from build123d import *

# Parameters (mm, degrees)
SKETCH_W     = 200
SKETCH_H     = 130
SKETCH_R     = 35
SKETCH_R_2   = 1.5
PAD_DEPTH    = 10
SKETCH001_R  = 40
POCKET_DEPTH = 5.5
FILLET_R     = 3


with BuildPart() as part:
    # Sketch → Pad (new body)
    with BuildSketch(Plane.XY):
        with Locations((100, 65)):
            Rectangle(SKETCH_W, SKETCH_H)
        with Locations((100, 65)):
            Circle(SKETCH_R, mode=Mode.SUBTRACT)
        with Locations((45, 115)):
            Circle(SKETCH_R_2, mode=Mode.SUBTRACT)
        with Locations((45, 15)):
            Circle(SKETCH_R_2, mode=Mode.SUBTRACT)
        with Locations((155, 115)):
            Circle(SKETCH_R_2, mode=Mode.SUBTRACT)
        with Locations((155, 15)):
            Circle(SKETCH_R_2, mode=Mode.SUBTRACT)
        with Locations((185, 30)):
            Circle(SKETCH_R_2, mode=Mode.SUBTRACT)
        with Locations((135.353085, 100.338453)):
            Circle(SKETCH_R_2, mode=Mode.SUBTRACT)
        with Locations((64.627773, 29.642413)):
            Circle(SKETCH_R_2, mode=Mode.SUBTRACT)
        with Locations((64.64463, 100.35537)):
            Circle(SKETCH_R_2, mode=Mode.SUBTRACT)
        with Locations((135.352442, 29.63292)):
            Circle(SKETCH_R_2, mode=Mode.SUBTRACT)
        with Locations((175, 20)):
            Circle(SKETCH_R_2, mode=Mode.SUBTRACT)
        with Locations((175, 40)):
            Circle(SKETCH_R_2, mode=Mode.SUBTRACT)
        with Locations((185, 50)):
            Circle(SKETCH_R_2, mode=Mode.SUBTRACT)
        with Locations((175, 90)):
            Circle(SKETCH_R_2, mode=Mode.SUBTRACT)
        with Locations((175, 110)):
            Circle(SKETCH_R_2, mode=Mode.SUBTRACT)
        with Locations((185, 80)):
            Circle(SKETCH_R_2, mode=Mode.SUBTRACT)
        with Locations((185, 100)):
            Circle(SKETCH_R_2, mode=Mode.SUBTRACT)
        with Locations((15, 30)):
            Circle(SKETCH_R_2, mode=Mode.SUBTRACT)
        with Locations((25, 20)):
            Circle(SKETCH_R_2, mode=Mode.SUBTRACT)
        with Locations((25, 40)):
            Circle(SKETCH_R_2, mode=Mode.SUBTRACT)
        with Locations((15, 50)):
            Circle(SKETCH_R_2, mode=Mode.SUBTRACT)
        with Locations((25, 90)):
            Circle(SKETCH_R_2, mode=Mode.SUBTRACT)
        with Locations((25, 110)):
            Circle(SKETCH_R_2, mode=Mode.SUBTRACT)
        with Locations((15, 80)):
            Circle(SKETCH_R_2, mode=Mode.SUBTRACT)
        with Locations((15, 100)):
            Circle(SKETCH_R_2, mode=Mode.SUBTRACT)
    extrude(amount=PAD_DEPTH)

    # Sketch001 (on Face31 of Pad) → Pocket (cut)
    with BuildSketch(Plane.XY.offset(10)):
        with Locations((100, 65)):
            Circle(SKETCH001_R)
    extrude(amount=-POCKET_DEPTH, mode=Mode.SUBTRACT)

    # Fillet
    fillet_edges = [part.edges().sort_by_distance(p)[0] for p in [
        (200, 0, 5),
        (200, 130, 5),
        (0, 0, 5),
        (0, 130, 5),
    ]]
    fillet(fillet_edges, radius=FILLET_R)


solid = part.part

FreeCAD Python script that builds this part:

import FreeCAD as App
import Part
import Sketcher
from FreeCAD import Vector
Q = App.Units.Quantity


def edges_at(feature, points):
    """Names of the edges that pass closest to the given points."""
    edges = feature.Shape.Edges
    near = lambda p: min(range(len(edges)), key=lambda i: edges[i].distToShape(Part.Vertex(*p))[0])
    return sorted({f"Edge{near(p) + 1}" for p in points})


def add_polygon(sketch, points):
    """Adds a closed chain of lines whose ends are joined by coincident constraints."""
    first, n = sketch.GeometryCount, len(points)
    for a, b in zip(points, points[1:] + points[:1]):
        sketch.addGeometry(Part.LineSegment(App.Vector(*a, 0), App.Vector(*b, 0)), False)
    for i in range(n):
        sketch.addConstraint(Sketcher.Constraint("Coincident", first + i, 2, first + (i + 1) % n, 1))

doc = App.newDocument("Part")
params = doc.addObject("Spreadsheet::Sheet", "Params")
for row, (alias, value) in enumerate([
    ("sketch1_diameter", "3 mm"),
    ("sketch1_diameter2", "70 mm"),
    ("sketch1_width", "200 mm"),
    ("sketch1_height", "130 mm"),
    ("pad1_length", "10 mm"),
    ("sketch2_diameter", "80 mm"),
    ("pocket1_length", "5.5 mm"),
    ("fillet_radius", "3 mm"),
], start=1):
    params.set(f"A{row}", alias)
    params.set(f"B{row}", "=" + value)
    params.setAlias(f"B{row}", alias)

body = doc.addObject("PartDesign::Body", "Body")

sketch1 = body.newObject("Sketcher::SketchObject", "Sketch")
sketch1.AttachmentSupport = (doc.getObject("XY_Plane"), [""])
sketch1.MapMode = "FlatFace"
add_polygon(sketch1, [(0, 130), (0, 0), (200, 0), (200, 130)])
sketch1.addGeometry(Part.Circle(Vector(25, 20, 0), Vector(0, 0, 1), 1.5), False)
sketch1.addGeometry(Part.Circle(Vector(45, 15, 0), Vector(0, 0, 1), 1.5), False)
sketch1.addGeometry(Part.Circle(Vector(15, 30, 0), Vector(0, 0, 1), 1.5), False)
sketch1.addGeometry(Part.Circle(Vector(64.6, 29.6, 0), Vector(0, 0, 1), 1.5), False)
sketch1.addGeometry(Part.Circle(Vector(25, 40, 0), Vector(0, 0, 1), 1.5), False)
sketch1.addGeometry(Part.Circle(Vector(15, 50, 0), Vector(0, 0, 1), 1.5), False)
sketch1.addGeometry(Part.Circle(Vector(135.4, 29.6, 0), Vector(0, 0, 1), 1.5), False)
sketch1.addGeometry(Part.Circle(Vector(155, 15, 0), Vector(0, 0, 1), 1.5), False)
sketch1.addGeometry(Part.Circle(Vector(175, 20, 0), Vector(0, 0, 1), 1.5), False)
sketch1.addGeometry(Part.Circle(Vector(185, 30, 0), Vector(0, 0, 1), 1.5), False)
sketch1.addGeometry(Part.Circle(Vector(100, 65, 0), Vector(0, 0, 1), 35), False)
sketch1.addGeometry(Part.Circle(Vector(175, 40, 0), Vector(0, 0, 1), 1.5), False)
sketch1.addGeometry(Part.Circle(Vector(185, 50, 0), Vector(0, 0, 1), 1.5), False)
sketch1.addGeometry(Part.Circle(Vector(15, 80, 0), Vector(0, 0, 1), 1.5), False)
sketch1.addGeometry(Part.Circle(Vector(25, 90, 0), Vector(0, 0, 1), 1.5), False)
sketch1.addGeometry(Part.Circle(Vector(15, 100, 0), Vector(0, 0, 1), 1.5), False)
sketch1.addGeometry(Part.Circle(Vector(25, 110, 0), Vector(0, 0, 1), 1.5), False)
sketch1.addGeometry(Part.Circle(Vector(45, 115, 0), Vector(0, 0, 1), 1.5), False)
sketch1.addGeometry(Part.Circle(Vector(64.6, 100.4, 0), Vector(0, 0, 1), 1.5), False)
sketch1.addGeometry(Part.Circle(Vector(185, 80, 0), Vector(0, 0, 1), 1.5), False)
sketch1.addGeometry(Part.Circle(Vector(175, 90, 0), Vector(0, 0, 1), 1.5), False)
sketch1.addGeometry(Part.Circle(Vector(135.4, 100.3, 0), Vector(0, 0, 1), 1.5), False)
sketch1.addGeometry(Part.Circle(Vector(185, 100, 0), Vector(0, 0, 1), 1.5), False)
sketch1.addGeometry(Part.Circle(Vector(155, 115, 0), Vector(0, 0, 1), 1.5), False)
sketch1.addGeometry(Part.Circle(Vector(175, 110, 0), Vector(0, 0, 1), 1.5), False)
sketch1.addConstraint([
    Sketcher.Constraint("Vertical", 0),
    Sketcher.Constraint("Horizontal", 1),
    Sketcher.Constraint("Vertical", 2),
    Sketcher.Constraint("Horizontal", 3),
    Sketcher.Constraint("Coincident", 0, 2, -1, 1),
    Sketcher.Constraint("Equal", 4, 5),
    Sketcher.Constraint("Equal", 5, 6),
    Sketcher.Constraint("Equal", 6, 7),
    Sketcher.Constraint("Equal", 7, 8),
    Sketcher.Constraint("Equal", 8, 9),
    Sketcher.Constraint("Equal", 9, 10),
    Sketcher.Constraint("Equal", 10, 11),
    Sketcher.Constraint("Equal", 11, 12),
    Sketcher.Constraint("Equal", 12, 13),
    Sketcher.Constraint("Equal", 13, 15),
    Sketcher.Constraint("Equal", 15, 16),
    Sketcher.Constraint("Equal", 16, 17),
    Sketcher.Constraint("Equal", 17, 18),
    Sketcher.Constraint("Equal", 18, 19),
    Sketcher.Constraint("Equal", 19, 20),
    Sketcher.Constraint("Equal", 20, 21),
    Sketcher.Constraint("Equal", 21, 22),
    Sketcher.Constraint("Equal", 22, 23),
    Sketcher.Constraint("Equal", 23, 24),
    Sketcher.Constraint("Equal", 24, 25),
    Sketcher.Constraint("Equal", 25, 26),
    Sketcher.Constraint("Equal", 26, 27),
    Sketcher.Constraint("Equal", 27, 28),
    Sketcher.Constraint("Horizontal", 5, 3, 11, 3),
    Sketcher.Constraint("Horizontal", 4, 3, 12, 3),
    Sketcher.Constraint("Horizontal", 6, 3, 13, 3),
    Sketcher.Constraint("Horizontal", 8, 3, 15, 3),
    Sketcher.Constraint("Horizontal", 9, 3, 16, 3),
    Sketcher.Constraint("Horizontal", 17, 3, 23, 3),
    Sketcher.Constraint("Horizontal", 18, 3, 24, 3),
    Sketcher.Constraint("Horizontal", 19, 3, 26, 3),
    Sketcher.Constraint("Horizontal", 21, 3, 27, 3),
    Sketcher.Constraint("Horizontal", 20, 3, 28, 3),
    Sketcher.Constraint("Vertical", 4, 3, 8, 3),
    Sketcher.Constraint("Vertical", 6, 3, 9, 3),
    Sketcher.Constraint("Vertical", 12, 3, 15, 3),
    Sketcher.Constraint("Vertical", 13, 3, 16, 3),
    Sketcher.Constraint("Vertical", 9, 3, 17, 3),
    Sketcher.Constraint("Vertical", 8, 3, 18, 3),
    Sketcher.Constraint("Vertical", 17, 3, 19, 3),
    Sketcher.Constraint("Vertical", 18, 3, 20, 3),
    Sketcher.Constraint("Vertical", 5, 3, 21, 3),
    Sketcher.Constraint("Vertical", 16, 3, 23, 3),
    Sketcher.Constraint("Vertical", 15, 3, 24, 3),
    Sketcher.Constraint("Vertical", 23, 3, 26, 3),
    Sketcher.Constraint("Vertical", 11, 3, 27, 3),
    Sketcher.Constraint("Vertical", 24, 3, 28, 3),
    Sketcher.Constraint("Diameter", 4, Q("3 mm")),
    Sketcher.Constraint("Diameter", 14, Q("70 mm")),
    Sketcher.Constraint("DistanceX", 1, 1, 1, 2, Q("200 mm")),
    Sketcher.Constraint("DistanceY", 0, 2, 0, 1, Q("130 mm")),
    Sketcher.Constraint("DistanceX", -1, 1, 4, 3, Q("25 mm")),
    Sketcher.Constraint("DistanceY", -1, 1, 4, 3, Q("20 mm")),
    Sketcher.Constraint("DistanceX", -1, 1, 5, 3, Q("45 mm")),
    Sketcher.Constraint("DistanceY", -1, 1, 5, 3, Q("15 mm")),
    Sketcher.Constraint("DistanceX", -1, 1, 6, 3, Q("15 mm")),
    Sketcher.Constraint("DistanceY", -1, 1, 6, 3, Q("30 mm")),
    Sketcher.Constraint("DistanceY", -1, 1, 8, 3, Q("40 mm")),
    Sketcher.Constraint("DistanceY", -1, 1, 9, 3, Q("50 mm")),
    Sketcher.Constraint("DistanceX", -1, 1, 11, 3, Q("155 mm")),
    Sketcher.Constraint("DistanceX", -1, 1, 12, 3, Q("175 mm")),
    Sketcher.Constraint("DistanceX", -1, 1, 13, 3, Q("185 mm")),
    Sketcher.Constraint("DistanceX", -1, 1, 14, 3, Q("100 mm")),
    Sketcher.Constraint("DistanceY", -1, 1, 14, 3, Q("65 mm")),
    Sketcher.Constraint("DistanceY", -1, 1, 17, 3, Q("80 mm")),
    Sketcher.Constraint("DistanceY", -1, 1, 18, 3, Q("90 mm")),
    Sketcher.Constraint("DistanceY", -1, 1, 19, 3, Q("100 mm")),
    Sketcher.Constraint("DistanceY", -1, 1, 20, 3, Q("110 mm")),
    Sketcher.Constraint("DistanceY", -1, 1, 21, 3, Q("115 mm")),
    Sketcher.Constraint("DistanceX", -1, 1, 10, 3, Q("135.352442 mm")),
    Sketcher.Constraint("DistanceY", -1, 1, 10, 3, Q("29.63292 mm")),
    Sketcher.Constraint("DistanceX", -1, 1, 22, 3, Q("64.64463 mm")),
    Sketcher.Constraint("DistanceY", -1, 1, 22, 3, Q("100.35537 mm")),
    Sketcher.Constraint("DistanceX", 7, 3, 10, 3, Q("70.724669 mm")),
    Sketcher.Constraint("DistanceY", -1, 1, 7, 3, Q("29.642413 mm")),
    Sketcher.Constraint("DistanceX", -1, 1, 25, 3, Q("135.353085 mm")),
    Sketcher.Constraint("DistanceY", -1, 1, 25, 3, Q("100.338453 mm")),
])
sketch1.setExpression("Constraints[56]", "Params.sketch1_diameter")
sketch1.setExpression("Constraints[57]", "Params.sketch1_diameter2")
sketch1.setExpression("Constraints[58]", "Params.sketch1_width")
sketch1.setExpression("Constraints[59]", "Params.sketch1_height")
pad1 = body.newObject("PartDesign::Pad", "Pad")
pad1.Profile = sketch1
pad1.setExpression("Length", "Params.pad1_length")

sketch2 = body.newObject("Sketcher::SketchObject", "Sketch001")
sketch2.AttachmentSupport = (doc.getObject("XY_Plane"), [""])
sketch2.MapMode = "FlatFace"
sketch2.AttachmentOffset = App.Placement(Vector(0, 0, 10), App.Rotation())
sketch2.addGeometry(Part.Circle(Vector(100, 65, 0), Vector(0, 0, 1), 40), False)
sketch2.addConstraint([
    Sketcher.Constraint("Diameter", 0, Q("80 mm")),
    Sketcher.Constraint("DistanceX", -1, 1, 0, 3, Q("100 mm")),
    Sketcher.Constraint("DistanceY", -1, 1, 0, 3, Q("65 mm")),
])
sketch2.setExpression("Constraints[0]", "Params.sketch2_diameter")
pocket1 = body.newObject("PartDesign::Pocket", "Pocket")
pocket1.Profile = sketch2
pocket1.setExpression("Length", "Params.pocket1_length")
doc.recompute()

fillet = body.newObject("PartDesign::Fillet", "Fillet")
fillet.Base = (pocket1, edges_at(pocket1, [
    (200, 0, 5),
    (200, 130, 5),
    (0, 0, 5),
    (0, 130, 5),
]))
fillet.setExpression("Radius", "Params.fillet_radius")

doc.recompute()
